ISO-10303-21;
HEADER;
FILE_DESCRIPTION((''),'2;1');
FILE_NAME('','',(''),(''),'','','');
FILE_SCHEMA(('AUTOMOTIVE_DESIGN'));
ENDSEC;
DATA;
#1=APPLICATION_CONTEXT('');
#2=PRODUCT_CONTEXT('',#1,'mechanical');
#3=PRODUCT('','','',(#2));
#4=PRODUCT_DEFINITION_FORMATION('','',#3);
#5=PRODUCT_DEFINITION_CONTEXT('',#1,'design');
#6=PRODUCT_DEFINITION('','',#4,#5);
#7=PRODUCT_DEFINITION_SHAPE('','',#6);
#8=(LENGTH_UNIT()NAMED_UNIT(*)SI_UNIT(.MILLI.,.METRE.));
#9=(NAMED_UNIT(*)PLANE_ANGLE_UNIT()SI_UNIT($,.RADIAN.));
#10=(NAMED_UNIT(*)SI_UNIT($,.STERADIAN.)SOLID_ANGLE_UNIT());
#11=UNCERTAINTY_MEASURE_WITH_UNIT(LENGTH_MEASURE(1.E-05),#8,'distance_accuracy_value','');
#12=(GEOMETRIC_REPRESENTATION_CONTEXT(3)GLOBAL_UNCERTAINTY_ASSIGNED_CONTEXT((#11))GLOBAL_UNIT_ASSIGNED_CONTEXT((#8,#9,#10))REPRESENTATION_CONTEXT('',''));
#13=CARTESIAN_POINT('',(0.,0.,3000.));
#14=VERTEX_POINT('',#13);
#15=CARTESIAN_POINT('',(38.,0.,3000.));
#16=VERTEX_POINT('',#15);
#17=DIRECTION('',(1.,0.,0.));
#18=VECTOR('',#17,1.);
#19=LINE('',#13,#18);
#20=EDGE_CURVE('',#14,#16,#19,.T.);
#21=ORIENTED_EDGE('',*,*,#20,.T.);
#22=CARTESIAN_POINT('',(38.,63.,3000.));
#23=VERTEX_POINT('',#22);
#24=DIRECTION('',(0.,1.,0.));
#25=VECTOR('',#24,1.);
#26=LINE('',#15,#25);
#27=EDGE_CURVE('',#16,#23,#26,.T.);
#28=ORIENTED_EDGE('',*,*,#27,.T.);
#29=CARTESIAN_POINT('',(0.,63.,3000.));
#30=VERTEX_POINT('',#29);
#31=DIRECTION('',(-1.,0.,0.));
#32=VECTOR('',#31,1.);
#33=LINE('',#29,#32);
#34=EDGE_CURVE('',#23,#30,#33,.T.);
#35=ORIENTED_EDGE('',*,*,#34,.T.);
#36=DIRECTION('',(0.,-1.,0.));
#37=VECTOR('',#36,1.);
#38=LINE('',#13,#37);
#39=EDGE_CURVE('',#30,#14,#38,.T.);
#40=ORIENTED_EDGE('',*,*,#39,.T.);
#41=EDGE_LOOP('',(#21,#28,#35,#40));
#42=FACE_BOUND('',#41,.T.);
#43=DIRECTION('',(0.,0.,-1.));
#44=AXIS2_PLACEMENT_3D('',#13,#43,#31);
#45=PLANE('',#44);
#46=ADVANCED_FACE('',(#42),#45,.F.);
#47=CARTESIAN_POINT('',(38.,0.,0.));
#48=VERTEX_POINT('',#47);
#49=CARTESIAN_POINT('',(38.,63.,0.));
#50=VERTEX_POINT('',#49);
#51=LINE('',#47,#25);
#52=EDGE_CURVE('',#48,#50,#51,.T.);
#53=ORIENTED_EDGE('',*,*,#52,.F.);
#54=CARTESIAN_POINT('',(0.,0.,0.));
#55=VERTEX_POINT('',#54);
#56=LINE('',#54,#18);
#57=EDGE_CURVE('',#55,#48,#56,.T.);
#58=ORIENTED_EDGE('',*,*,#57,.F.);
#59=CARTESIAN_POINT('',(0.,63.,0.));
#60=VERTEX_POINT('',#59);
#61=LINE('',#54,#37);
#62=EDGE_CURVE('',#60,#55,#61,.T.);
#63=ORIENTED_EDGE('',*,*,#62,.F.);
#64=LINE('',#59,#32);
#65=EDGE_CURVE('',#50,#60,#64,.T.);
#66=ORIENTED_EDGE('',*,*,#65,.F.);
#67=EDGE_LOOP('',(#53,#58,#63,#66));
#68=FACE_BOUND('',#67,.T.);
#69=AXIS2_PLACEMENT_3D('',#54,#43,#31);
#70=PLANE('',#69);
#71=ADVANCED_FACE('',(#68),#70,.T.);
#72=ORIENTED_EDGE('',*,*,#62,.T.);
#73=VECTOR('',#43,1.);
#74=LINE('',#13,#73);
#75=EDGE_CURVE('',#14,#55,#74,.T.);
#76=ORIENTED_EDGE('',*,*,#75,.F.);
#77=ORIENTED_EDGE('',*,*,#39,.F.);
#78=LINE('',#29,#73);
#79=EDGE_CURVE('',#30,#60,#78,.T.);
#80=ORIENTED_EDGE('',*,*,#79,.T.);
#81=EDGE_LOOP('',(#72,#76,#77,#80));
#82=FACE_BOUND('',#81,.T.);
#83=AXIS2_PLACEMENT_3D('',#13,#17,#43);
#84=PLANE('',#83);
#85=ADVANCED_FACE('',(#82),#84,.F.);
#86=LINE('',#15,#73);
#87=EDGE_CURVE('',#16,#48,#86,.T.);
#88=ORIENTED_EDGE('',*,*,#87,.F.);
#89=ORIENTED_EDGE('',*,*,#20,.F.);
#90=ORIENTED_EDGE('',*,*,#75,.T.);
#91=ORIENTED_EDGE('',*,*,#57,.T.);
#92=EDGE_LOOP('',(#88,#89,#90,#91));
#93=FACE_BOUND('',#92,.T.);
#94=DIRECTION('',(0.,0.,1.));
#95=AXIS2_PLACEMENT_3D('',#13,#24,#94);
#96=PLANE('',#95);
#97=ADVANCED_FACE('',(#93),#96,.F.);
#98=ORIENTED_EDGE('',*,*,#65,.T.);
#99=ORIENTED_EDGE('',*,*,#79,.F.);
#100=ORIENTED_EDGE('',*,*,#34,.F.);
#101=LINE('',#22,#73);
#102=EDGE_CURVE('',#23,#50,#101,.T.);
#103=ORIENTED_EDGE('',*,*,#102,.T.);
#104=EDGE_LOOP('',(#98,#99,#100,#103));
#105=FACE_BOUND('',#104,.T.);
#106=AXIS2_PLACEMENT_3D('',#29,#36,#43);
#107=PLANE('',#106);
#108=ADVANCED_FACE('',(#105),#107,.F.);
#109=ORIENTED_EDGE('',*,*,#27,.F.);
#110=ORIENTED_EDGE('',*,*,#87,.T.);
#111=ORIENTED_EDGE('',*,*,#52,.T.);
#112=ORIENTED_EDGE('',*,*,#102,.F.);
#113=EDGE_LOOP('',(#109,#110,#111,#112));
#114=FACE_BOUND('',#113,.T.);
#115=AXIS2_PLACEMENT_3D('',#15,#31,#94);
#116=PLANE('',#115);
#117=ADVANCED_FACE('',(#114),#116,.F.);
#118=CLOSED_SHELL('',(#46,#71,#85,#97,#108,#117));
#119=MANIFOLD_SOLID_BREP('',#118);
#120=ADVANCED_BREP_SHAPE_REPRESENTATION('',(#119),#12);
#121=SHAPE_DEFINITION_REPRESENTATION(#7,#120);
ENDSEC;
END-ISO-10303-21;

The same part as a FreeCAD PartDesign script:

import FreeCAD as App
import Part
import Sketcher

doc = App.newDocument("Part")
body = doc.addObject("PartDesign::Body", "Body")

# Sketch on XY plane
sketch1 = body.newObject("Sketcher::SketchObject", "Sketch")
sketch1.AttachmentSupport = (doc.getObject("XY_Plane"), [""])
sketch1.MapMode = "FlatFace"
sketch1.addGeometry([
    Part.LineSegment(App.Vector(0, 63, 0), App.Vector(0, 0, 0)),
    Part.LineSegment(App.Vector(0, 0, 0), App.Vector(38, 0, 0)),
    Part.LineSegment(App.Vector(38, 0, 0), App.Vector(38, 63, 0)),
    Part.LineSegment(App.Vector(38, 63, 0), App.Vector(0, 63, 0)),
], False)
sketch1.addConstraint([
    Sketcher.Constraint("Coincident", 0, 2, 1, 1),
    Sketcher.Constraint("Coincident", 1, 2, 2, 1),
    Sketcher.Constraint("Coincident", 2, 2, 3, 1),
    Sketcher.Constraint("Coincident", 3, 2, 0, 1),
    Sketcher.Constraint("Vertical", 0),
    Sketcher.Constraint("Horizontal", 1),
    Sketcher.Constraint("Vertical", 2),
    Sketcher.Constraint("Horizontal", 3),
    Sketcher.Constraint("Coincident", 0, 2, -1, 1),
    Sketcher.Constraint("DistanceX", 1, 1, 1, 2, 38.0),
    Sketcher.Constraint("DistanceY", 0, 2, 0, 1, 63.0),
])
pad1 = body.newObject("PartDesign::Pad", "Pad")
pad1.Profile = sketch1
pad1.Length = 3000

doc.recompute()
